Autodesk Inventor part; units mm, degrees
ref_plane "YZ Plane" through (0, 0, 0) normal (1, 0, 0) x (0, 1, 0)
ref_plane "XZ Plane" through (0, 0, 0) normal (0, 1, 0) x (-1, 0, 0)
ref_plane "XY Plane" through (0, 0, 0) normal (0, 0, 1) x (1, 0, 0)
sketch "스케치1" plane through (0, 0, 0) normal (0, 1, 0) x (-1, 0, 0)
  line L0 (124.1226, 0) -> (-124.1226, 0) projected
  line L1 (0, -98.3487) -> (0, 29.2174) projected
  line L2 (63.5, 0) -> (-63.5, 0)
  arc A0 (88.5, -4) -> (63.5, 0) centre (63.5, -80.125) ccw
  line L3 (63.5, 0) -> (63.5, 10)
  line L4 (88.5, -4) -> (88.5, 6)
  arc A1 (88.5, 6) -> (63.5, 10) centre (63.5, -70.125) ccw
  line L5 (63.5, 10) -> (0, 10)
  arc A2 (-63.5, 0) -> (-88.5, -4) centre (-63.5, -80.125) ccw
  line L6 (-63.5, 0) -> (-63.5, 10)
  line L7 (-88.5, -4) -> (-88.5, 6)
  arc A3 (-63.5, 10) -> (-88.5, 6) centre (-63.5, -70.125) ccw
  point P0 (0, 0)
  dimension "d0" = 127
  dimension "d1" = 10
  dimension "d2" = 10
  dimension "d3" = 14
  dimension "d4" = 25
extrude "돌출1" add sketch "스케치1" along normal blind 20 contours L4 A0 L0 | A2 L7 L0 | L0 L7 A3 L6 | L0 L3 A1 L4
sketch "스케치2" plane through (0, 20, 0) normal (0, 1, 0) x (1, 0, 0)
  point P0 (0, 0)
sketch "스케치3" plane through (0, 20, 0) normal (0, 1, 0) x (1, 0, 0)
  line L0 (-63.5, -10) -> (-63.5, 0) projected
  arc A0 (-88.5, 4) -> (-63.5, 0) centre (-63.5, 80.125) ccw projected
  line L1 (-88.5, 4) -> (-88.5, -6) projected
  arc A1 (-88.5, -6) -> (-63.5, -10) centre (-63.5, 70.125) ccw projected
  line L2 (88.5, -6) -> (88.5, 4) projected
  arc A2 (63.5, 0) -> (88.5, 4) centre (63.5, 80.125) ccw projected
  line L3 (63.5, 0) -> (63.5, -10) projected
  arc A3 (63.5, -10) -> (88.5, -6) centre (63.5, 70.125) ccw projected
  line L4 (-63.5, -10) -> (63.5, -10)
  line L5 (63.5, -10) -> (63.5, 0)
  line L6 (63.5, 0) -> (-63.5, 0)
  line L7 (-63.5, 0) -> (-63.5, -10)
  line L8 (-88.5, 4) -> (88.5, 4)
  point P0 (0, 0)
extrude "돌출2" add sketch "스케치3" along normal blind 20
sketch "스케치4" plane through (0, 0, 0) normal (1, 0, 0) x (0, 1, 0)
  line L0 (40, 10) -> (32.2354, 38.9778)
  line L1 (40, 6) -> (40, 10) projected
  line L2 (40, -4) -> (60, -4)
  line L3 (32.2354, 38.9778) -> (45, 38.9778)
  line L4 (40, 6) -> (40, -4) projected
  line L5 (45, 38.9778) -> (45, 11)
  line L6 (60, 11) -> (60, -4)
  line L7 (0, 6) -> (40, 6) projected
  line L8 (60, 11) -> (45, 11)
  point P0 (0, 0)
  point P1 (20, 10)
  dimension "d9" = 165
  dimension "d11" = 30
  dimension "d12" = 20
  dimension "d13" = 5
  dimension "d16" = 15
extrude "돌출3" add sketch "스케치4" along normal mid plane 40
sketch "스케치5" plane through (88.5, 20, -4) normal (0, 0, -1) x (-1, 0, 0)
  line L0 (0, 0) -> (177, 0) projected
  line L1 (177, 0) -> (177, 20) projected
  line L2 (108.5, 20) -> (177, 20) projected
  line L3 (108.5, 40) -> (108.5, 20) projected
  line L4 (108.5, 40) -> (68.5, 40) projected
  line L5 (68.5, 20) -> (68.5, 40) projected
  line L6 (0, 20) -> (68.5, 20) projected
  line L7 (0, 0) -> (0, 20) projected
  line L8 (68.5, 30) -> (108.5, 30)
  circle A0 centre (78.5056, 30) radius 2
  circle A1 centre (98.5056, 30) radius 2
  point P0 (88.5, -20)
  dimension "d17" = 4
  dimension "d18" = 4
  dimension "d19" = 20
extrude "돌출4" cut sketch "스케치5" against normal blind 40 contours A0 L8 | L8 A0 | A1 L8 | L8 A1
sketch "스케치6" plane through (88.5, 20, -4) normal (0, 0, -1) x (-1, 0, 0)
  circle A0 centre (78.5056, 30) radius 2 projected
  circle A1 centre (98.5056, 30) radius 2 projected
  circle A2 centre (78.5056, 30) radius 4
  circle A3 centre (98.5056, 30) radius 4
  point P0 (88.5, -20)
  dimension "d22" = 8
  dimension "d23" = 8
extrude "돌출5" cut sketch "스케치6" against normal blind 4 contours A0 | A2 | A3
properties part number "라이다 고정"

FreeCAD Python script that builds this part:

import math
import FreeCAD as App
import Part
import Sketcher

V = App.Vector
Q = App.Units.Quantity

doc = App.newDocument("Part")
body = doc.addObject("PartDesign::Body", "Body")
body.AllowCompound = True

sketch1 = body.newObject("Sketcher::SketchObject", "Sketch")
sketch1.AttachmentSupport = (doc.getObject("XZ_Plane"), [""])
sketch1.MapMode = "FlatFace"
sketch1.addGeometry(Part.LineSegment(V(-88.5, -4, 0), V(-88.5, 6, 0)), False)
sketch1.addGeometry(Part.ArcOfCircle(Part.Circle(V(-63.5, -70.125, 0), V(0, 0, 1), 80.125), math.radians(90), math.radians(108.180554)), False)
sketch1.addGeometry(Part.LineSegment(V(-63.5, 10, 0), V(-63.5, 0, 0)), False)
sketch1.addGeometry(Part.ArcOfCircle(Part.Circle(V(-63.5, -80.125, 0), V(0, 0, 1), 80.125), math.radians(90), math.radians(108.180554)), False)
sketch1.addGeometry(Part.ArcOfCircle(Part.Circle(V(63.5, -80.125, 0), V(0, 0, 1), 80.125), math.radians(71.819446), math.radians(90)), False)
sketch1.addGeometry(Part.LineSegment(V(63.5, 0, 0), V(63.5, 10, 0)), False)
sketch1.addGeometry(Part.ArcOfCircle(Part.Circle(V(63.5, -70.125, 0), V(0, 0, 1), 80.125), math.radians(71.819446), math.radians(90)), False)
sketch1.addGeometry(Part.LineSegment(V(88.5, 6, 0), V(88.5, -4, 0)), False)
sketch1.addConstraint(Sketcher.Constraint("Coincident", 0, 2, 1, 2))
sketch1.addConstraint(Sketcher.Constraint("Coincident", 1, 1, 2, 1))
sketch1.addConstraint(Sketcher.Constraint("Coincident", 2, 2, 3, 1))
sketch1.addConstraint(Sketcher.Constraint("Coincident", 3, 2, 0, 1))
sketch1.addConstraint(Sketcher.Constraint("Coincident", 4, 2, 5, 1))
sketch1.addConstraint(Sketcher.Constraint("Coincident", 5, 2, 6, 2))
sketch1.addConstraint(Sketcher.Constraint("Coincident", 6, 1, 7, 1))
sketch1.addConstraint(Sketcher.Constraint("Coincident", 7, 2, 4, 1))
sketch1.addConstraint(Sketcher.Constraint("Vertical", 0))
sketch1.addConstraint(Sketcher.Constraint("Vertical", 2))
sketch1.addConstraint(Sketcher.Constraint("Vertical", 5))
sketch1.addConstraint(Sketcher.Constraint("Vertical", 7))
sketch1.addConstraint(Sketcher.Constraint("Equal", 1, 3))
sketch1.addConstraint(Sketcher.Constraint("Equal", 3, 4))
sketch1.addConstraint(Sketcher.Constraint("Equal", 4, 6))
sketch1.addConstraint(Sketcher.Constraint("Symmetric", 2, 2, 4, 2, -1, 1))
sketch1.addConstraint(Sketcher.Constraint("Symmetric", 3, 3, 4, 3, -2))
sketch1.addConstraint(Sketcher.Constraint("Symmetric", 1, 3, 6, 3, -2))
sketch1.addConstraint(Sketcher.Constraint("Horizontal", 0, 2, 6, 1))
sketch1.addConstraint(Sketcher.Constraint("Vertical", 1, 3, 3, 3))
sketch1.addConstraint(Sketcher.Constraint("Vertical", 3, 3, 1, 1))
sketch1.addConstraint(Sketcher.Constraint("DistanceY", 0, 1, 0, 2, Q("10 mm")))
sketch1.addConstraint(Sketcher.Constraint("DistanceX", 3, 3, 4, 3, Q("127 mm")))
sketch1.addConstraint(Sketcher.Constraint("DistanceX", 0, 2, 1, 3, Q("25 mm")))
sketch1.addConstraint(Sketcher.Constraint("DistanceY", 7, 2, 5, 2, Q("14 mm")))
pad1 = body.newObject("PartDesign::Pad", "Pad")
pad1.Profile = sketch1
pad1.Length = 20
pad1.Reversed = True

sketch2 = body.newObject("Sketcher::SketchObject", "Sketch001")
sketch2.AttachmentSupport = (doc.getObject("XZ_Plane"), [""])
sketch2.MapMode = "FlatFace"
sketch2.AttachmentOffset = App.Placement(V(0, 0, -20), App.Rotation())
sketch2.addGeometry(Part.ArcOfCircle(Part.Circle(V(-63.5, -70.125, 0), V(0, 0, 1), 80.125), math.radians(90), math.radians(108.180554)), False)
sketch2.addGeometry(Part.LineSegment(V(-63.5, 10, 0), V(63.5, 10, 0)), False)
sketch2.addGeometry(Part.ArcOfCircle(Part.Circle(V(63.5, -70.125, 0), V(0, 0, 1), 80.125), math.radians(71.819446), math.radians(90)), False)
sketch2.addGeometry(Part.LineSegment(V(88.5, 6, 0), V(88.5, -4, 0)), False)
sketch2.addGeometry(Part.LineSegment(V(88.5, -4, 0), V(-88.5, -4, 0)), False)
sketch2.addGeometry(Part.LineSegment(V(-88.5, -4, 0), V(-88.5, 6, 0)), False)
sketch2.addConstraint(Sketcher.Constraint("Tangent", 0, 1, 1, 1))
sketch2.addConstraint(Sketcher.Constraint("Tangent", 1, 2, 2, 2))
sketch2.addConstraint(Sketcher.Constraint("Coincident", 2, 1, 3, 1))
sketch2.addConstraint(Sketcher.Constraint("Coincident", 3, 2, 4, 1))
sketch2.addConstraint(Sketcher.Constraint("Coincident", 4, 2, 5, 1))
sketch2.addConstraint(Sketcher.Constraint("Coincident", 5, 2, 0, 2))
sketch2.addConstraint(Sketcher.Constraint("Horizontal", 1))
sketch2.addConstraint(Sketcher.Constraint("Vertical", 3))
sketch2.addConstraint(Sketcher.Constraint("Horizontal", 4))
sketch2.addConstraint(Sketcher.Constraint("Vertical", 5))
sketch2.addConstraint(Sketcher.Constraint("Equal", 0, 2))
sketch2.addConstraint(Sketcher.Constraint("Symmetric", 2, 1, 5, 2, -2))
sketch2.addConstraint(Sketcher.Constraint("DistanceX", 1, 1, 1, 2, Q("127 mm")))
sketch2.addConstraint(Sketcher.Constraint("DistanceX", 4, 2, 4, 1, Q("177 mm")))
sketch2.addConstraint(Sketcher.Constraint("DistanceY", 3, 2, 3, 1, Q("10 mm")))
sketch2.addConstraint(Sketcher.Constraint("DistanceY", -1, 1, 0, 1, Q("10 mm")))
sketch2.addConstraint(Sketcher.Constraint("DistanceY", 3, 2, -1, 1, Q("4 mm")))
pad2 = body.newObject("PartDesign::Pad", "Pad001")
pad2.Profile = sketch2
pad2.Length = 20
pad2.Reversed = True

sketch3 = body.newObject("Sketcher::SketchObject", "Sketch002")
sketch3.AttachmentSupport = (doc.getObject("YZ_Plane"), [""])
sketch3.MapMode = "FlatFace"
sketch3.addGeometry(Part.LineSegment(V(32.2354, 38.9778, 0), V(40, 10, 0)), False)
sketch3.addGeometry(Part.LineSegment(V(40, 10, 0), V(40, -4, 0)), False)
sketch3.addGeometry(Part.LineSegment(V(40, -4, 0), V(60, -4, 0)), False)
sketch3.addGeometry(Part.LineSegment(V(60, -4, 0), V(60, 11, 0)), False)
sketch3.addGeometry(Part.LineSegment(V(60, 11, 0), V(45, 11, 0)), False)
sketch3.addGeometry(Part.LineSegment(V(45, 11, 0), V(45, 38.9778, 0)), False)
sketch3.addGeometry(Part.LineSegment(V(45, 38.9778, 0), V(32.2354, 38.9778, 0)), False)
sketch3.addConstraint(Sketcher.Constraint("Coincident", 0, 2, 1, 1))
sketch3.addConstraint(Sketcher.Constraint("Coincident", 1, 2, 2, 1))
sketch3.addConstraint(Sketcher.Constraint("Coincident", 2, 2, 3, 1))
sketch3.addConstraint(Sketcher.Constraint("Coincident", 3, 2, 4, 1))
sketch3.addConstraint(Sketcher.Constraint("Coincident", 4, 2, 5, 1))
sketch3.addConstraint(Sketcher.Constraint("Coincident", 5, 2, 6, 1))
sketch3.addConstraint(Sketcher.Constraint("Coincident", 6, 2, 0, 1))
sketch3.addConstraint(Sketcher.Constraint("Vertical", 1))
sketch3.addConstraint(Sketcher.Constraint("Horizontal", 2))
sketch3.addConstraint(Sketcher.Constraint("Vertical", 3))
sketch3.addConstraint(Sketcher.Constraint("Horizontal", 4))
sketch3.addConstraint(Sketcher.Constraint("Vertical", 5))
sketch3.addConstraint(Sketcher.Constraint("Horizontal", 6))
sketch3.addConstraint(Sketcher.Constraint("Equal", 4, 3))
sketch3.addConstraint(Sketcher.Constraint("DistanceX", 2, 1, 2, 2, Q("20 mm")))
sketch3.addConstraint(Sketcher.Constraint("DistanceX", 4, 2, 4, 1, Q("15 mm")))
sketch3.addConstraint(Sketcher.Constraint("Distance", 0, Q("30 mm")))
sketch3.addConstraint(Sketcher.Constraint("DistanceY", 1, 2, 1, 1, Q("14 mm")))
sketch3.addConstraint(Sketcher.Constraint("Angle", 0, Q("-75 deg")))
sketch3.addConstraint(Sketcher.Constraint("DistanceX", -1, 1, 0, 2, Q("40 mm")))
sketch3.addConstraint(Sketcher.Constraint("DistanceY", -1, 1, 0, 2, Q("10 mm")))
pad3 = body.newObject("PartDesign::Pad", "Pad002")
pad3.Profile = sketch3
pad3.Length = 40
pad3.Midplane = True

sketch4 = body.newObject("Sketcher::SketchObject", "Sketch003")
sketch4.AttachmentSupport = (doc.getObject("XY_Plane"), [""])
sketch4.MapMode = "FlatFace"
sketch4.AttachmentOffset = App.Placement(V(0, 0, -4), App.Rotation())
sketch4.addGeometry(Part.Circle(V(9.9944, 50, 0), V(0, 0, 1), 2), False)
sketch4.addGeometry(Part.Circle(V(-10.0056, 50, 0), V(0, 0, 1), 2), False)
sketch4.addConstraint(Sketcher.Constraint("Equal", 0, 1))
sketch4.addConstraint(Sketcher.Constraint("Horizontal", 0, 3, 1, 3))
sketch4.addConstraint(Sketcher.Constraint("Diameter", 0, Q("4 mm")))
sketch4.addConstraint(Sketcher.Constraint("DistanceX", 1, 3, 0, 3, Q("20 mm")))
sketch4.addConstraint(Sketcher.Constraint("DistanceY", -1, 1, 0, 3, Q("50 mm")))
sketch4.addConstraint(Sketcher.Constraint("DistanceX", -1, 1, 0, 3, Q("9.9944 mm")))
pocket1 = body.newObject("PartDesign::Pocket", "Pocket")
pocket1.Profile = sketch4
pocket1.Length = 40
pocket1.Reversed = True

sketch5 = body.newObject("Sketcher::SketchObject", "Sketch004")
sketch5.AttachmentSupport = (doc.getObject("XY_Plane"), [""])
sketch5.MapMode = "FlatFace"
sketch5.AttachmentOffset = App.Placement(V(0, 0, -4), App.Rotation())
sketch5.addGeometry(Part.Circle(V(9.9944, 50, 0), V(0, 0, 1), 4), False)
sketch5.addGeometry(Part.Circle(V(-10.0056, 50, 0), V(0, 0, 1), 4), False)
sketch5.addGeometry(Part.Circle(V(-10.0056, 50, 0), V(0, 0, 1), 2), False)
sketch5.addConstraint(Sketcher.Constraint("Coincident", 2, 3, 1, 3))
sketch5.addConstraint(Sketcher.Constraint("Equal", 0, 1))
sketch5.addConstraint(Sketcher.Constraint("Horizontal", 0, 3, 1, 3))
sketch5.addConstraint(Sketcher.Constraint("Diameter", 0, Q("8 mm")))
sketch5.addConstraint(Sketcher.Constraint("Diameter", 2, Q("4 mm")))
sketch5.addConstraint(Sketcher.Constraint("DistanceY", -1, 1, 0, 3, Q("50 mm")))
sketch5.addConstraint(Sketcher.Constraint("DistanceX", 1, 3, 0, 3, Q("20 mm")))
sketch5.addConstraint(Sketcher.Constraint("DistanceX", -1, 1, 0, 3, Q("9.9944 mm")))
pocket2 = body.newObject("PartDesign::Pocket", "Pocket001")
pocket2.Profile = sketch5
pocket2.Length = 4
pocket2.Reversed = True

doc.recompute()
